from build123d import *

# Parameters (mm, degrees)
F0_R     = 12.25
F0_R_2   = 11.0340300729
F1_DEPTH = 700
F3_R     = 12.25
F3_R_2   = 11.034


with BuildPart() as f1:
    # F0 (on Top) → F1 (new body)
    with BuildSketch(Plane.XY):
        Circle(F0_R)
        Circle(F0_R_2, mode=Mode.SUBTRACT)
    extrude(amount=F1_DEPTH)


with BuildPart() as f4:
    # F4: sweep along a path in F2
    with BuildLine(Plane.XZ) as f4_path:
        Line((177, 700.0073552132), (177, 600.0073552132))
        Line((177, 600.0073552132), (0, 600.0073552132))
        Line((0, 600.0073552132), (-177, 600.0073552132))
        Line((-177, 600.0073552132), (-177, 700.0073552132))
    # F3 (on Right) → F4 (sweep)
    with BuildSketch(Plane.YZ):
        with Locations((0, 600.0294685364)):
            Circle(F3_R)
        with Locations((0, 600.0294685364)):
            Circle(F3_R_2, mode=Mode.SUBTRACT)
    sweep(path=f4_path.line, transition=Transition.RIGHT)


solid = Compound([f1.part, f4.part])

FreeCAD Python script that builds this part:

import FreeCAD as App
import Part
import Sketcher
from FreeCAD import Vector
Q = App.Units.Quantity

doc = App.newDocument("Part")
body = doc.addObject("PartDesign::Body", "Body")

# Sketch on XY plane
sketch1 = body.newObject("Sketcher::SketchObject", "Sketch")
sketch1.AttachmentSupport = (doc.getObject("XY_Plane"), [""])
sketch1.MapMode = "FlatFace"
sketch1.addGeometry([
    Part.Circle(Vector(0, 0, 0), Vector(0, 0, 1), 12),
    Part.Circle(Vector(0, 0, 0), Vector(0, 0, 1), 11),
], False)
sketch1.addConstraint([
    Sketcher.Constraint("Coincident", 0, 3, -1, 1),
    Sketcher.Constraint("Coincident", 1, 3, -1, 1),
    Sketcher.Constraint("Diameter", 0, Q("24.5 mm")),
    Sketcher.Constraint("Diameter", 1, Q("22.06806 mm")),
])
pad1 = body.newObject("PartDesign::Pad", "Pad")
pad1.Profile = sketch1
pad1.Length = 700
body2 = doc.addObject("PartDesign::Body", "Body001")

# Sketch on YZ plane
sketch2 = body2.newObject("Sketcher::SketchObject", "Sketch001")
sketch2.AttachmentSupport = (doc.getObject("YZ_Plane001"), [""])
sketch2.MapMode = "FlatFace"
sketch2.addGeometry([
    Part.Circle(Vector(0, 600, 0), Vector(0, 0, 1), 12),
    Part.Circle(Vector(0, 600, 0), Vector(0, 0, 1), 11),
], False)
sketch2.addConstraint([
    Sketcher.Constraint("Coincident", 1, 3, 0, 3),
    Sketcher.Constraint("PointOnObject", 0, 3, -2),
    Sketcher.Constraint("Diameter", 0, Q("24.5 mm")),
    Sketcher.Constraint("Diameter", 1, Q("22.068 mm")),
    Sketcher.Constraint("DistanceY", -1, 1, 0, 3, Q("600.029469 mm")),
])

# Sketch on XZ plane
sketch3 = body2.newObject("Sketcher::SketchObject", "Sketch002")
sketch3.AttachmentSupport = (doc.getObject("XZ_Plane001"), [""])
sketch3.MapMode = "FlatFace"
sketch3.addGeometry([
    Part.LineSegment(Vector(177, 700, 0), Vector(177, 600, 0)),
    Part.LineSegment(Vector(177, 600, 0), Vector(-177, 600, 0)),
    Part.LineSegment(Vector(-177, 600, 0), Vector(-177, 700, 0)),
], False)
sketch3.addConstraint([
    Sketcher.Constraint("Coincident", 0, 2, 1, 1),
    Sketcher.Constraint("Coincident", 1, 2, 2, 1),
    Sketcher.Constraint("Vertical", 0),
    Sketcher.Constraint("Horizontal", 1),
    Sketcher.Constraint("Vertical", 2),
    Sketcher.Constraint("Symmetric", 0, 1, 2, 2, -2),
    Sketcher.Constraint("DistanceX", 1, 2, 1, 1, Q("354 mm")),
    Sketcher.Constraint("DistanceY", 0, 2, 0, 1, Q("100 mm")),
    Sketcher.Constraint("DistanceY", -1, 1, 0, 1, Q("700.007355 mm")),
])
doc.recompute()

additivepipe = body2.newObject("PartDesign::AdditivePipe", "AdditivePipe")
additivepipe.Profile = sketch2
additivepipe.Spine = (sketch3, ["Edge1", "Edge2", "Edge3"])
additivepipe.Transition = "Right corner"

doc.recompute()
